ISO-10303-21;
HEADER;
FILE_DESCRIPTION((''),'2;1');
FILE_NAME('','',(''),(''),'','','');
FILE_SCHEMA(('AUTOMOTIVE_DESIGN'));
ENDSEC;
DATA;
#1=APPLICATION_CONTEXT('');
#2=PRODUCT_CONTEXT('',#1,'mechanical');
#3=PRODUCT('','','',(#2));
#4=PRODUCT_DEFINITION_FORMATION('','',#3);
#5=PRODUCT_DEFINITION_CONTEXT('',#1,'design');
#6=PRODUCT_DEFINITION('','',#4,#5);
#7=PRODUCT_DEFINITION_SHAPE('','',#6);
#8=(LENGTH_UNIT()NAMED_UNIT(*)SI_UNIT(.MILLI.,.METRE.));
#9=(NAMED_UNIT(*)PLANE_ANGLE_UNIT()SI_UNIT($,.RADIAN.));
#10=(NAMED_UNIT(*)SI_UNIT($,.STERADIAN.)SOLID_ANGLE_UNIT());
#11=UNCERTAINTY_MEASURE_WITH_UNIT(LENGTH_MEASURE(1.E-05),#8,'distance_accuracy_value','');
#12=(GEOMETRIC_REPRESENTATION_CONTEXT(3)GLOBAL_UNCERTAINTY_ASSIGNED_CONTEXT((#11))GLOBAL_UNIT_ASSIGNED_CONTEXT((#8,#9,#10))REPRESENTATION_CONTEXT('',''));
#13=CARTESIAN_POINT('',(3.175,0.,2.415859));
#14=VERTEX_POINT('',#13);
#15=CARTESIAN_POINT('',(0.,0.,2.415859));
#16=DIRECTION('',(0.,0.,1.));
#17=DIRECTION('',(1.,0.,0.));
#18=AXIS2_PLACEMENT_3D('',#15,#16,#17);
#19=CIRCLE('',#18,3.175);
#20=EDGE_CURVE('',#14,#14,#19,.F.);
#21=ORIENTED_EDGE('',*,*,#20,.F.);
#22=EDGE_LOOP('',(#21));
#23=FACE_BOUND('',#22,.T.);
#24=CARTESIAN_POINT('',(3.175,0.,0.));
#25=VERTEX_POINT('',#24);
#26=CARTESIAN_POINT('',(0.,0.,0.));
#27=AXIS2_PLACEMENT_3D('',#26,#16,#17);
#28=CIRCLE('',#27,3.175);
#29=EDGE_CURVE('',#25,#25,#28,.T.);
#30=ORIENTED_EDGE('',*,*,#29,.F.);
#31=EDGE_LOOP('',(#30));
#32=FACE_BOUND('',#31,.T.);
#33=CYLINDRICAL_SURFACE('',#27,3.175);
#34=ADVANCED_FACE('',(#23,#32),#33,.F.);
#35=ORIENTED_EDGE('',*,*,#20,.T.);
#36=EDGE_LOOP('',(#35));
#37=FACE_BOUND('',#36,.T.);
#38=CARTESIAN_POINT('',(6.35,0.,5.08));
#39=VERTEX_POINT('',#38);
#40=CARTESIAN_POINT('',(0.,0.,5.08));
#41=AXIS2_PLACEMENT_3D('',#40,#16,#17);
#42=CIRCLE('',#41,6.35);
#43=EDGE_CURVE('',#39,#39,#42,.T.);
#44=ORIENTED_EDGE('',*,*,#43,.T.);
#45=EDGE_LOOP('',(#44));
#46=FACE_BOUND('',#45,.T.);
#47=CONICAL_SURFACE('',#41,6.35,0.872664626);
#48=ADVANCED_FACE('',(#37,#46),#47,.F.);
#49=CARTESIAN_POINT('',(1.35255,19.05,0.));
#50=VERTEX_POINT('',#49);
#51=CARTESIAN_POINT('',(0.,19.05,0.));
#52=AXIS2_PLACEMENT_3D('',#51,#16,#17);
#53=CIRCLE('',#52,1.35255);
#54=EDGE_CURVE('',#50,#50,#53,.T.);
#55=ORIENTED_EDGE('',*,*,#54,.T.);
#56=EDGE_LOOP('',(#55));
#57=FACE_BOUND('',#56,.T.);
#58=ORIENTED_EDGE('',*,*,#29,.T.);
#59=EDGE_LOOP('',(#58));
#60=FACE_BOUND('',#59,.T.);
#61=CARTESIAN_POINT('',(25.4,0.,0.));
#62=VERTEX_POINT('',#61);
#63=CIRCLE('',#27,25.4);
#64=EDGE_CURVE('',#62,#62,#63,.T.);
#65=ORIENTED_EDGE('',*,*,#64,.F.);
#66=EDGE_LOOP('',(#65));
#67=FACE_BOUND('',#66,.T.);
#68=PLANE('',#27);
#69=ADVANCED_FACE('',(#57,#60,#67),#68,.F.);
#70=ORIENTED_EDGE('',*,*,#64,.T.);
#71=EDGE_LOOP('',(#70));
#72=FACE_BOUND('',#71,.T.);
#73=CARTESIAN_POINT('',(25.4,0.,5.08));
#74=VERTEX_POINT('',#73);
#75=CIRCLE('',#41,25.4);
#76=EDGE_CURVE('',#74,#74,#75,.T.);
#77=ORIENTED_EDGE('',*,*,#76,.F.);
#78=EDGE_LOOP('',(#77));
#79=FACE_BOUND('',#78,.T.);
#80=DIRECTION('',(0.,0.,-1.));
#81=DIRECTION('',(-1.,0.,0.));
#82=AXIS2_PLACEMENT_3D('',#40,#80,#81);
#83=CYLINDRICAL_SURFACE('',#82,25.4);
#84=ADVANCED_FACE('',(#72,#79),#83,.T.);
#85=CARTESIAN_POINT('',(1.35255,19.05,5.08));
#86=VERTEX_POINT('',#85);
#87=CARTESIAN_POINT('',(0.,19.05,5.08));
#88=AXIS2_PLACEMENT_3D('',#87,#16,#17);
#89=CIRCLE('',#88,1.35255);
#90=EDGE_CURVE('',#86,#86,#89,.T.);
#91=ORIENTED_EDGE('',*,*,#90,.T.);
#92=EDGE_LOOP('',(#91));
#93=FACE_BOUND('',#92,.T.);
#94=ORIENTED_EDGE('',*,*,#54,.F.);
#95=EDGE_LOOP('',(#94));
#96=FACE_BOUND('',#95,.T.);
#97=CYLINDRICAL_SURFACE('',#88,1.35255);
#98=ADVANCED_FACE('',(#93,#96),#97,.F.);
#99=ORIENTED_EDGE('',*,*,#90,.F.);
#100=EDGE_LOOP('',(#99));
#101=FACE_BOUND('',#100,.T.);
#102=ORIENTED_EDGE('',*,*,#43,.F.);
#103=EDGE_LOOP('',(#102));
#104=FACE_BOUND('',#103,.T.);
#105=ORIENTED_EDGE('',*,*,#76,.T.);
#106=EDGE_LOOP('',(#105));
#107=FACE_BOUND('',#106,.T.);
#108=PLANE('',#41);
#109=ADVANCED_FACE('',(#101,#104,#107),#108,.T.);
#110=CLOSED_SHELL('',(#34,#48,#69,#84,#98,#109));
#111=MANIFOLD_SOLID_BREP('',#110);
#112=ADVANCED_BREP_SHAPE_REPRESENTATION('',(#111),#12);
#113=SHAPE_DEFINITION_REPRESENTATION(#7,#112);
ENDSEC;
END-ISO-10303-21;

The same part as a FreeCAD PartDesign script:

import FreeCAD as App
import Part
import Sketcher
Q = App.Units.Quantity

doc = App.newDocument("Part")
body = doc.addObject("PartDesign::Body", "Body")

sketch1 = doc.addObject("Sketcher::SketchObject", "Sketch")
body.addObject(sketch1)
sketch1.AttachmentSupport = (doc.XY_Plane, [""])
sketch1.MapMode = "FlatFace"
sketch1.addGeometry(Part.Circle(App.Vector(0, 0, 0), App.Vector(0, 0, 1), 25), False)
sketch1.addConstraint(Sketcher.Constraint("Coincident", 0, 3, -1, 1))
sketch1.addConstraint(Sketcher.Constraint("Diameter", 0, Q("2 in")))
pad1 = doc.addObject("PartDesign::Pad", "Pad")
body.addObject(pad1)
pad1.Profile = sketch1
pad1.Length = Q("0.2 in")

sketch2 = doc.addObject("Sketcher::SketchObject", "Sketch001")
body.addObject(sketch2)
sketch2.AttachmentSupport = (doc.YZ_Plane, [""])
sketch2.MapMode = "FlatFace"
sketch2.addGeometry(Part.LineSegment(App.Vector(0, 2.5, 0), App.Vector(0, 5.1, 0)), False)
sketch2.addGeometry(Part.LineSegment(App.Vector(0, 5.1, 0), App.Vector(-6.3, 5.1, 0)), False)
sketch2.addGeometry(Part.LineSegment(App.Vector(-6.3, 5.1, 0), App.Vector(-3.2, 2.4, 0)), False)
sketch2.addGeometry(Part.LineSegment(App.Vector(-3.2, 2.4, 0), App.Vector(-3.2, 4.4, 0)), False)
sketch2.addGeometry(Part.LineSegment(App.Vector(-3.2, 4.4, 0), App.Vector(0, 2.5, 0)), False)
sketch2.addConstraint(Sketcher.Constraint("Coincident", 0, 2, 1, 1))
sketch2.addConstraint(Sketcher.Constraint("Coincident", 1, 2, 2, 1))
sketch2.addConstraint(Sketcher.Constraint("Coincident", 2, 2, 3, 1))
sketch2.addConstraint(Sketcher.Constraint("Coincident", 3, 2, 4, 1))
sketch2.addConstraint(Sketcher.Constraint("Coincident", 4, 2, 0, 1))
sketch2.addConstraint(Sketcher.Constraint("Vertical", 0))
sketch2.addConstraint(Sketcher.Constraint("Horizontal", 1))
sketch2.addConstraint(Sketcher.Constraint("Vertical", 3))
sketch2.addConstraint(Sketcher.Constraint("PointOnObject", 0, 2, -2))
sketch2.addConstraint(Sketcher.Constraint("DistanceY", 0, 1, 0, 2, Q("0.1 in")))
sketch2.addConstraint(Sketcher.Constraint("Angle", 2, Q("-40 deg")))
sketch2.addConstraint(Sketcher.Constraint("Angle", 4, Q("-31 deg")))
sketch2.addConstraint(Sketcher.Constraint("DistanceX", 1, 2, 1, 1, Q("0.25 in")))
sketch2.addConstraint(Sketcher.Constraint("DistanceY", -1, 1, 0, 2, Q("0.2 in")))
sketch2.addConstraint(Sketcher.Constraint("DistanceX", 2, 2, -1, 1, Q("0.125 in")))
groove = doc.addObject("PartDesign::Groove", "Groove")
body.addObject(groove)
groove.Profile = sketch2
groove.ReferenceAxis = (sketch2, ["V_Axis"])
groove.Angle = 360

sketch3 = doc.addObject("Sketcher::SketchObject", "Sketch002")
body.addObject(sketch3)
sketch3.AttachmentSupport = (doc.XY_Plane, [""])
sketch3.MapMode = "FlatFace"
sketch3.AttachmentOffset = App.Placement(App.Vector(0, 0, 0.2 * 25.4), App.Rotation())
sketch3.addGeometry(Part.Circle(App.Vector(0, 0, 0), App.Vector(0, 0, 1), 3.2), False)
sketch3.addConstraint(Sketcher.Constraint("Coincident", 0, 3, -1, 1))
sketch3.addConstraint(Sketcher.Constraint("Diameter", 0, Q("0.25 in")))
pocket1 = doc.addObject("PartDesign::Pocket", "Pocket")
body.addObject(pocket1)
pocket1.Profile = sketch3
pocket1.Type = "ThroughAll"

sketch4 = doc.addObject("Sketcher::SketchObject", "Sketch003")
body.addObject(sketch4)
sketch4.AttachmentSupport = (doc.XY_Plane, [""])
sketch4.MapMode = "FlatFace"
sketch4.AttachmentOffset = App.Placement(App.Vector(0, 0, 0.2 * 25.4), App.Rotation())
sketch4.addGeometry(Part.Circle(App.Vector(0, 19.1, 0), App.Vector(0, 0, 1), 1.4), False)
sketch4.addConstraint(Sketcher.Constraint("PointOnObject", 0, 3, -2))
sketch4.addConstraint(Sketcher.Constraint("Diameter", 0, Q("0.1065 in")))
sketch4.addConstraint(Sketcher.Constraint("DistanceY", -1, 1, 0, 3, Q("0.75 in")))
doc.recompute()
hole = doc.addObject("PartDesign::Hole", "Hole")
body.addObject(hole)
hole.Profile = sketch4
hole.ThreadType = "None"
hole.Diameter = Q("0.1065 in")
hole.DepthType = "ThroughAll"

doc.recompute()
